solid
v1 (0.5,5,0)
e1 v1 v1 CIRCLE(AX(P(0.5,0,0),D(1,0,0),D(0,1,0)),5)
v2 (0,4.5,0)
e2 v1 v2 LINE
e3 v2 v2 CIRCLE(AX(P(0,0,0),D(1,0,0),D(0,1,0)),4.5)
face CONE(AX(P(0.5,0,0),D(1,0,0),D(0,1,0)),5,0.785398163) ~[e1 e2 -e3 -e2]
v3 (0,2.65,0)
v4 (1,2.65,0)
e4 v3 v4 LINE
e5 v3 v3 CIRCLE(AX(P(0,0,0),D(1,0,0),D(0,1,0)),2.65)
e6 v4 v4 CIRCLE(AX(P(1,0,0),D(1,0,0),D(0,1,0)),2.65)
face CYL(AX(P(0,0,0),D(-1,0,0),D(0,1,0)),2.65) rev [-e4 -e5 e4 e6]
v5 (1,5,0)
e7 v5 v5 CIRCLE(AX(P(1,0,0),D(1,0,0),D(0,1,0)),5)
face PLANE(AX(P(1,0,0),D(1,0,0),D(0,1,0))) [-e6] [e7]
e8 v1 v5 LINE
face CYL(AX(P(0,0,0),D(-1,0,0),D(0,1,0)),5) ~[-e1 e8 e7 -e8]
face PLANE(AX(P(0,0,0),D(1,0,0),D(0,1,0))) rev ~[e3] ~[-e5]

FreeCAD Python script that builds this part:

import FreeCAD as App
import Part
import Sketcher
Q = App.Units.Quantity


def edges_at(feature, points):
    """Names of the edges that pass closest to the given points."""
    edges = feature.Shape.Edges
    near = lambda p: min(range(len(edges)), key=lambda i: edges[i].distToShape(Part.Vertex(*p))[0])
    return sorted({f"Edge{near(p) + 1}" for p in points})

doc = App.newDocument("Part")
body = doc.addObject("PartDesign::Body", "Body")

sketch1 = doc.addObject("Sketcher::SketchObject", "Sketch")
body.addObject(sketch1)
sketch1.AttachmentSupport = (doc.YZ_Plane, [""])
sketch1.MapMode = "FlatFace"
sketch1.addGeometry([
    Part.Circle(App.Vector(0, 0, 0), App.Vector(0, 0, 1), 5),
    Part.Circle(App.Vector(0, 0, 0), App.Vector(0, 0, 1), 2.65),
], False)
sketch1.addConstraint([
    Sketcher.Constraint("Coincident", 0, 3, -1, 1),
    Sketcher.Constraint("Coincident", 1, 3, -1, 1),
    Sketcher.Constraint("Diameter", 0, Q("10 mm")),
    Sketcher.Constraint("Diameter", 1, Q("5.3 mm")),
])
pad1 = doc.addObject("PartDesign::Pad", "Pad")
body.addObject(pad1)
pad1.Profile = sketch1
pad1.Length = 1
doc.recompute()

chamfer = doc.addObject("PartDesign::Chamfer", "Chamfer")
body.addObject(chamfer)
chamfer.Base = (pad1, edges_at(pad1, [(0, -5, 0)]))
chamfer.Size = 0.5

doc.recompute()
